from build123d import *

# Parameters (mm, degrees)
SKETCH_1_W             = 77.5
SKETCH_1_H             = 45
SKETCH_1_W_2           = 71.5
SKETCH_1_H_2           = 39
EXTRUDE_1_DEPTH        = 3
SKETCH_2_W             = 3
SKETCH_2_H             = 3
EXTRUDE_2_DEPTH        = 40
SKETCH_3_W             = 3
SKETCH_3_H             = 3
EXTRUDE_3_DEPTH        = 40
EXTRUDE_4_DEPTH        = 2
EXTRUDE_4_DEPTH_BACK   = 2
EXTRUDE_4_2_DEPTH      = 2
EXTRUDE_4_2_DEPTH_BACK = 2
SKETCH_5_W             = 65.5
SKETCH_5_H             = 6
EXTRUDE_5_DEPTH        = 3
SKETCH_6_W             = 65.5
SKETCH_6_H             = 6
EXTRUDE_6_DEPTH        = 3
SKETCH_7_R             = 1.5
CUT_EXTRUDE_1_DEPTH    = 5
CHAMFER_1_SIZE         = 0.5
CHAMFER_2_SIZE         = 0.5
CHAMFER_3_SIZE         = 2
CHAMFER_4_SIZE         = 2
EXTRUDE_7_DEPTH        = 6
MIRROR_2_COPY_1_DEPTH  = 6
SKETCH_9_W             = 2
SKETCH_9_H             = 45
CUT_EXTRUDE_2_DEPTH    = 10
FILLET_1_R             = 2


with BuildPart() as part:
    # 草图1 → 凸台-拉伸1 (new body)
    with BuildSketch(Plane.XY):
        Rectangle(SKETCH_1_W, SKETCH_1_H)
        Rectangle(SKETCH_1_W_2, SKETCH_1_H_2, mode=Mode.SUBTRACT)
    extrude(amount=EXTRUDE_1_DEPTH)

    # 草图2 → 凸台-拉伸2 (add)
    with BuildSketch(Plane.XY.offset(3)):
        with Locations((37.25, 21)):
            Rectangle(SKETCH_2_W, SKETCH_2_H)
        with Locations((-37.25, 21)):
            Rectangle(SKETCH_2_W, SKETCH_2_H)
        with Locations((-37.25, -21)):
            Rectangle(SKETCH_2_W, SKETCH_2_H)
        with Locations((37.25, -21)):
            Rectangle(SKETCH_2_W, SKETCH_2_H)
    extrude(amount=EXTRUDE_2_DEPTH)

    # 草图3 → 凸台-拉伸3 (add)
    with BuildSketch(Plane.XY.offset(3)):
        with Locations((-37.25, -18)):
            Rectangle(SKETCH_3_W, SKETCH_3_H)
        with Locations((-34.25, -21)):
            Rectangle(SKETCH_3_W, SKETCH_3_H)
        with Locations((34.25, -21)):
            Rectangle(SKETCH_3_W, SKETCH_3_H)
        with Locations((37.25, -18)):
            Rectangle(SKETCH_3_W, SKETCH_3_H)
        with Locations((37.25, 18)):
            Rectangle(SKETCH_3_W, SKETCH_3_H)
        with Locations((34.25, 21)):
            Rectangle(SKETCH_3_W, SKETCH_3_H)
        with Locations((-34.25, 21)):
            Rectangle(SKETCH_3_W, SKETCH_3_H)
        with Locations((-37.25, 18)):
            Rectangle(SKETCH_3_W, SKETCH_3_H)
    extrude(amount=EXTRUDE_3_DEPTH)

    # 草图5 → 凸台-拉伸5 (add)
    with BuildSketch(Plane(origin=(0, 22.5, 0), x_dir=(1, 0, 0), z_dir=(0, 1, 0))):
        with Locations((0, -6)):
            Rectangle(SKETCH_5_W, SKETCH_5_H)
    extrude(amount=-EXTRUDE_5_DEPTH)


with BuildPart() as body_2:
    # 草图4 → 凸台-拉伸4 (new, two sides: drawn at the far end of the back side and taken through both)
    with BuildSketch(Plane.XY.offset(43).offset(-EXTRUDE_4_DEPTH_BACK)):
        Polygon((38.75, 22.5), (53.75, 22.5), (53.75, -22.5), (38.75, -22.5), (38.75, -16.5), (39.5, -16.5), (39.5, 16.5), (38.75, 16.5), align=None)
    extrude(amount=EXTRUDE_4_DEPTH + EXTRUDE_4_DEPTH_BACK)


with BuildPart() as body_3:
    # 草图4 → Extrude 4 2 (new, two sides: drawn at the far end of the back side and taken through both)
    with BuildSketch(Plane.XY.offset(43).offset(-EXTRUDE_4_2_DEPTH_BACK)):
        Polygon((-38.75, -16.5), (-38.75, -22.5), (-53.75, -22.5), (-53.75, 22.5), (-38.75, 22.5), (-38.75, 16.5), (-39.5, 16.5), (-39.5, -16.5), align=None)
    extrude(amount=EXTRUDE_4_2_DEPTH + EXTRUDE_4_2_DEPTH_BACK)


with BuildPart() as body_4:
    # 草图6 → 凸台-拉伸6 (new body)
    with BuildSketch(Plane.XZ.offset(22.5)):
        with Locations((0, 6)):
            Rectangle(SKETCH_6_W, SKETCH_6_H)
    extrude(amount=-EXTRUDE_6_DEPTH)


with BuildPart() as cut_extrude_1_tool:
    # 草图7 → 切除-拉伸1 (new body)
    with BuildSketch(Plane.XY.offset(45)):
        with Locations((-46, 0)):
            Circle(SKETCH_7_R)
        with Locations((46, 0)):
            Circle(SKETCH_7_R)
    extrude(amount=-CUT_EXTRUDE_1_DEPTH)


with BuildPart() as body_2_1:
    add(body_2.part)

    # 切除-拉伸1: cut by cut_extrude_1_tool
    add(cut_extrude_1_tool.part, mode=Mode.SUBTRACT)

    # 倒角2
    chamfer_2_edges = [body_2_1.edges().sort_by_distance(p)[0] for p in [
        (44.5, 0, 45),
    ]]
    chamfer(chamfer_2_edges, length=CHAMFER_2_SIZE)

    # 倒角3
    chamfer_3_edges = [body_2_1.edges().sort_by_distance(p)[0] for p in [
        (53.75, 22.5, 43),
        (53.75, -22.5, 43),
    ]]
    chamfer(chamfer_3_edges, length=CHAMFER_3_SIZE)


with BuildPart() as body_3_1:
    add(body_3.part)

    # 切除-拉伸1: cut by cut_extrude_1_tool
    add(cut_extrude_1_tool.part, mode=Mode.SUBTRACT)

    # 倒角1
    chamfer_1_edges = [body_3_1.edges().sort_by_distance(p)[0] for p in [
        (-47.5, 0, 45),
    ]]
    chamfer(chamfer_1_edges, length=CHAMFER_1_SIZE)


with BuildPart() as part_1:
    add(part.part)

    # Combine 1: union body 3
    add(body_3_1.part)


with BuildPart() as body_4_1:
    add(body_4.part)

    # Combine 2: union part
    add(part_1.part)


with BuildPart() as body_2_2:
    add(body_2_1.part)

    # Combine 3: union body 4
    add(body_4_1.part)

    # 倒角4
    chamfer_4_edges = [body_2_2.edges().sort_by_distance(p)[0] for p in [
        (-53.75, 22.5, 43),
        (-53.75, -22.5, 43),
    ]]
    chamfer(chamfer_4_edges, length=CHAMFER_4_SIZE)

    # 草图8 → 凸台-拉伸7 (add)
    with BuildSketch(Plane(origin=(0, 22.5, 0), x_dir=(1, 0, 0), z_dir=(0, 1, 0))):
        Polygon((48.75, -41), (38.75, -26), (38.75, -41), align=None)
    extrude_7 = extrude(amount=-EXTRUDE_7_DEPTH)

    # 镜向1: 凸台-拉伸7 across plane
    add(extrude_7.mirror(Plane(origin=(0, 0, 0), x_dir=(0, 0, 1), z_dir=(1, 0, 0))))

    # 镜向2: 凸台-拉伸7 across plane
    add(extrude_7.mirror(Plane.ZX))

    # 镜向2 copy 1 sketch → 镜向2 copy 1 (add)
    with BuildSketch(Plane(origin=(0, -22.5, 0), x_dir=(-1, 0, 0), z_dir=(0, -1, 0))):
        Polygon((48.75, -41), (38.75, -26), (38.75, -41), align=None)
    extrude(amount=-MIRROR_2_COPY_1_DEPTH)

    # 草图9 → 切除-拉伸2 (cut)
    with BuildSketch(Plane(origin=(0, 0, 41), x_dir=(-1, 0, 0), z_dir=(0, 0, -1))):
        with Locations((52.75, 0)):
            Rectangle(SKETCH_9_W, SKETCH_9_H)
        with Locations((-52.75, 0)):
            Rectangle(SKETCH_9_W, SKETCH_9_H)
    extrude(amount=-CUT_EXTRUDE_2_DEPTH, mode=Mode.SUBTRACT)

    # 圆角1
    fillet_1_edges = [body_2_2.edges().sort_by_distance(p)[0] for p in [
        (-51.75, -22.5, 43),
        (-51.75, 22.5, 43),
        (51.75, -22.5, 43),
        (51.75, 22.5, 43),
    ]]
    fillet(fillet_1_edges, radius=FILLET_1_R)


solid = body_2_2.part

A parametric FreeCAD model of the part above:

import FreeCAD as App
import Part
import Sketcher
from FreeCAD import Vector
Q = App.Units.Quantity


def edges_at(feature, points):
    """Names of the edges that pass closest to the given points."""
    edges = feature.Shape.Edges
    near = lambda p: min(range(len(edges)), key=lambda i: edges[i].distToShape(Part.Vertex(*p))[0])
    return sorted({f"Edge{near(p) + 1}" for p in points})


def add_polygon(sketch, points):
    """Adds a closed chain of lines whose ends are joined by coincident constraints."""
    first, n = sketch.GeometryCount, len(points)
    for a, b in zip(points, points[1:] + points[:1]):
        sketch.addGeometry(Part.LineSegment(App.Vector(*a, 0), App.Vector(*b, 0)), False)
    for i in range(n):
        sketch.addConstraint(Sketcher.Constraint("Coincident", first + i, 2, first + (i + 1) % n, 1))

doc = App.newDocument("Part")
body = doc.addObject("PartDesign::Body", "Body")

sketch1 = body.newObject("Sketcher::SketchObject", "Sketch")
sketch1.AttachmentSupport = (doc.getObject("XY_Plane"), [""])
sketch1.MapMode = "FlatFace"
add_polygon(sketch1, [(-38.75, 22.5), (-38.75, -22.5), (38.75, -22.5), (38.75, 22.5)])
add_polygon(sketch1, [(35.75, -19.5), (-35.75, -19.5), (-35.75, 19.5), (35.75, 19.5)])
sketch1.addConstraint([
    Sketcher.Constraint("Vertical", 0),
    Sketcher.Constraint("Horizontal", 1),
    Sketcher.Constraint("Vertical", 2),
    Sketcher.Constraint("Horizontal", 3),
    Sketcher.Constraint("Horizontal", 4),
    Sketcher.Constraint("Vertical", 5),
    Sketcher.Constraint("Horizontal", 6),
    Sketcher.Constraint("Vertical", 7),
    Sketcher.Constraint("Symmetric", 0, 2, 2, 2, -1, 1),
    Sketcher.Constraint("Symmetric", 4, 2, 6, 2, -1, 1),
    Sketcher.Constraint("DistanceY", 0, 2, 0, 1, Q("45 mm")),
    Sketcher.Constraint("DistanceY", 5, 1, 5, 2, Q("39 mm")),
    Sketcher.Constraint("DistanceX", 1, 1, 1, 2, Q("77.5 mm")),
    Sketcher.Constraint("DistanceX", 4, 2, 4, 1, Q("71.5 mm")),
])
pad1 = body.newObject("PartDesign::Pad", "Pad")
pad1.Profile = sketch1
pad1.Length = 3

sketch2 = body.newObject("Sketcher::SketchObject", "Sketch001")
sketch2.AttachmentSupport = (doc.getObject("XY_Plane"), [""])
sketch2.MapMode = "FlatFace"
sketch2.AttachmentOffset = App.Placement(Vector(0, 0, 3), App.Rotation())
add_polygon(sketch2, [(35.75, 22.5), (35.75, 19.5), (38.75, 19.5), (38.75, 22.5)])
add_polygon(sketch2, [(-38.75, 22.5), (-38.75, 19.5), (-35.75, 19.5), (-35.75, 22.5)])
add_polygon(sketch2, [(-38.75, -19.5), (-38.75, -22.5), (-35.75, -22.5), (-35.75, -19.5)])
add_polygon(sketch2, [(35.75, -19.5), (35.75, -22.5), (38.75, -22.5), (38.75, -19.5)])
sketch2.addConstraint([
    Sketcher.Constraint("Vertical", 0),
    Sketcher.Constraint("Horizontal", 1),
    Sketcher.Constraint("Vertical", 2),
    Sketcher.Constraint("Horizontal", 3),
    Sketcher.Constraint("Vertical", 4),
    Sketcher.Constraint("Horizontal", 5),
    Sketcher.Constraint("Vertical", 6),
    Sketcher.Constraint("Horizontal", 7),
    Sketcher.Constraint("Vertical", 8),
    Sketcher.Constraint("Horizontal", 9),
    Sketcher.Constraint("Vertical", 10),
    Sketcher.Constraint("Horizontal", 11),
    Sketcher.Constraint("Vertical", 12),
    Sketcher.Constraint("Horizontal", 13),
    Sketcher.Constraint("Vertical", 14),
    Sketcher.Constraint("Horizontal", 15),
    Sketcher.Constraint("Symmetric", 2, 2, 8, 2, -1, 1),
    Sketcher.Constraint("Symmetric", 0, 2, 10, 2, -1, 1),
    Sketcher.Constraint("Symmetric", 6, 2, 12, 2, -1, 1),
    Sketcher.Constraint("Symmetric", 4, 2, 14, 2, -1, 1),
    Sketcher.Constraint("Symmetric", 1, 2, 4, 2, -2),
    Sketcher.Constraint("Symmetric", 3, 2, 6, 2, -2),
    Sketcher.Constraint("Equal", 15, 0),
    Sketcher.Constraint("DistanceX", 1, 1, 1, 2, Q("3 mm")),
    Sketcher.Constraint("DistanceY", 8, 2, 4, 2, Q("42 mm")),
    Sketcher.Constraint("DistanceX", 4, 2, 0, 2, Q("74.5 mm")),
])
pad2 = body.newObject("PartDesign::Pad", "Pad001")
pad2.Profile = sketch2
pad2.Length = 40

sketch3 = body.newObject("Sketcher::SketchObject", "Sketch002")
sketch3.AttachmentSupport = (doc.getObject("XY_Plane"), [""])
sketch3.MapMode = "FlatFace"
sketch3.AttachmentOffset = App.Placement(Vector(0, 0, 3), App.Rotation())
add_polygon(sketch3, [(-38.75, -16.5), (-38.75, -19.5), (-35.75, -19.5), (-35.75, -16.5)])
add_polygon(sketch3, [(-35.75, -19.5), (-35.75, -22.5), (-32.75, -22.5), (-32.75, -19.5)])
add_polygon(sketch3, [(32.75, -19.5), (32.75, -22.5), (35.75, -22.5), (35.75, -19.5)])
add_polygon(sketch3, [(35.75, -16.5), (35.75, -19.5), (38.75, -19.5), (38.75, -16.5)])
add_polygon(sketch3, [(35.75, 19.5), (35.75, 16.5), (38.75, 16.5), (38.75, 19.5)])
add_polygon(sketch3, [(32.75, 22.5), (32.75, 19.5), (35.75, 19.5), (35.75, 22.5)])
add_polygon(sketch3, [(-35.75, 22.5), (-35.75, 19.5), (-32.75, 19.5), (-32.75, 22.5)])
add_polygon(sketch3, [(-38.75, 19.5), (-38.75, 16.5), (-35.75, 16.5), (-35.75, 19.5)])
sketch3.addConstraint([
    Sketcher.Constraint("Vertical", 0),
    Sketcher.Constraint("Horizontal", 1),
    Sketcher.Constraint("Vertical", 2),
    Sketcher.Constraint("Horizontal", 3),
    Sketcher.Constraint("Vertical", 4),
    Sketcher.Constraint("Horizontal", 5),
    Sketcher.Constraint("Vertical", 6),
    Sketcher.Constraint("Horizontal", 7),
    Sketcher.Constraint("Vertical", 8),
    Sketcher.Constraint("Horizontal", 9),
    Sketcher.Constraint("Vertical", 10),
    Sketcher.Constraint("Horizontal", 11),
    Sketcher.Constraint("Vertical", 12),
    Sketcher.Constraint("Horizontal", 13),
    Sketcher.Constraint("Vertical", 14),
    Sketcher.Constraint("Horizontal", 15),
    Sketcher.Constraint("Vertical", 16),
    Sketcher.Constraint("Horizontal", 17),
    Sketcher.Constraint("Vertical", 18),
    Sketcher.Constraint("Horizontal", 19),
    Sketcher.Constraint("Vertical", 20),
    Sketcher.Constraint("Horizontal", 21),
    Sketcher.Constraint("Vertical", 22),
    Sketcher.Constraint("Horizontal", 23),
    Sketcher.Constraint("Vertical", 24),
    Sketcher.Constraint("Horizontal", 25),
    Sketcher.Constraint("Vertical", 26),
    Sketcher.Constraint("Horizontal", 27),
    Sketcher.Constraint("Vertical", 28),
    Sketcher.Constraint("Horizontal", 29),
    Sketcher.Constraint("Vertical", 30),
    Sketcher.Constraint("Horizontal", 31),
    Sketcher.Constraint("Coincident", 7, 2, 1, 2),
    Sketcher.Constraint("Coincident", 12, 2, 10, 2),
    Sketcher.Constraint("Coincident", 21, 2, 19, 2),
    Sketcher.Constraint("Coincident", 30, 2, 24, 2),
    Sketcher.Constraint("Symmetric", 2, 2, 16, 2, -1, 1),
    Sketcher.Constraint("Symmetric", 0, 2, 18, 2, -1, 1),
    Sketcher.Constraint("Symmetric", 5, 2, 23, 2, -1, 1),
    Sketcher.Constraint("Symmetric", 10, 2, 24, 2, -1, 1),
    Sketcher.Constraint("Symmetric", 8, 2, 26, 2, -1, 1),
    Sketcher.Constraint("Symmetric", 14, 2, 28, 2, -1, 1),
    Sketcher.Constraint("Symmetric", 5, 2, 8, 2, -2),
    Sketcher.Constraint("Symmetric", 1, 2, 10, 2, -2),
    Sketcher.Constraint("Symmetric", 3, 2, 14, 2, -2),
    Sketcher.Constraint("Equal", 3, 5),
    Sketcher.Constraint("Equal", 31, 0),
    Sketcher.Constraint("Equal", 2, 4),
    Sketcher.Constraint("DistanceX", 1, 1, 1, 2, Q("3 mm")),
    Sketcher.Constraint("DistanceY", 15, 2, 16, 2, Q("33 mm")),
    Sketcher.Constraint("DistanceX", 5, 2, 8, 2, Q("65.5 mm")),
])
pad3 = body.newObject("PartDesign::Pad", "Pad002")
pad3.Profile = sketch3
pad3.Length = 40

sketch4 = body.newObject("Sketcher::SketchObject", "Sketch003")
sketch4.AttachmentSupport = (doc.getObject("XZ_Plane"), [""])
sketch4.MapMode = "FlatFace"
sketch4.AttachmentOffset = App.Placement(Vector(0, 0, -22.5), App.Rotation())
add_polygon(sketch4, [(-32.75, 3), (-32.75, 9), (32.75, 9), (32.75, 3)])
sketch4.addConstraint([
    Sketcher.Constraint("Vertical", 0),
    Sketcher.Constraint("Horizontal", 1),
    Sketcher.Constraint("Vertical", 2),
    Sketcher.Constraint("Horizontal", 3),
    Sketcher.Constraint("DistanceY", 0, 1, 0, 2, Q("6 mm")),
    Sketcher.Constraint("DistanceX", 1, 1, 1, 2, Q("65.5 mm")),
    Sketcher.Constraint("DistanceY", -1, 1, 0, 2, Q("9 mm")),
    Sketcher.Constraint("DistanceX", 0, 2, -1, 1, Q("32.75 mm")),
])
pad4 = body.newObject("PartDesign::Pad", "Pad003")
pad4.Profile = sketch4
pad4.Length = 3
body2 = doc.addObject("PartDesign::Body", "Body001")

sketch5 = body2.newObject("Sketcher::SketchObject", "Sketch004")
sketch5.AttachmentSupport = (doc.getObject("XY_Plane001"), [""])
sketch5.MapMode = "FlatFace"
sketch5.AttachmentOffset = App.Placement(Vector(0, 0, 43), App.Rotation())
add_polygon(sketch5, [(53.75, 22.5), (38.75, 22.5), (38.75, 16.5), (39.5, 16.5), (39.5, -16.5), (38.75, -16.5), (38.75, -22.5), (53.75, -22.5)])
sketch5.addConstraint([
    Sketcher.Constraint("Horizontal", 0),
    Sketcher.Constraint("Vertical", 1),
    Sketcher.Constraint("Horizontal", 2),
    Sketcher.Constraint("Vertical", 3),
    Sketcher.Constraint("Horizontal", 4),
    Sketcher.Constraint("Vertical", 5),
    Sketcher.Constraint("Horizontal", 6),
    Sketcher.Constraint("Vertical", 7),
    Sketcher.Constraint("Symmetric", 1, 2, 4, 2, -1),
    Sketcher.Constraint("Equal", 1, 5),
    Sketcher.Constraint("DistanceX", 0, 2, 0, 1, Q("15 mm")),
    Sketcher.Constraint("DistanceY", 1, 2, 1, 1, Q("6 mm")),
    Sketcher.Constraint("DistanceY", 3, 2, 3, 1, Q("33 mm")),
    Sketcher.Constraint("DistanceX", 2, 1, 2, 2, Q("0.75 mm")),
    Sketcher.Constraint("DistanceX", -1, 1, 2, 2, Q("39.5 mm")),
])
pad5 = body2.newObject("PartDesign::Pad", "Pad004")
pad5.Profile = sketch5
pad5.Type = "TwoLengths"
pad5.Length = 2
pad5.Length2 = 2
body3 = doc.addObject("PartDesign::Body", "Body002")

sketch6 = body3.newObject("Sketcher::SketchObject", "Sketch005")
sketch6.AttachmentSupport = (doc.getObject("XY_Plane002"), [""])
sketch6.MapMode = "FlatFace"
sketch6.AttachmentOffset = App.Placement(Vector(0, 0, 43), App.Rotation())
add_polygon(sketch6, [(-38.75, -22.5), (-38.75, -16.5), (-39.5, -16.5), (-39.5, 16.5), (-38.75, 16.5), (-38.75, 22.5), (-53.75, 22.5), (-53.75, -22.5)])
sketch6.addConstraint([
    Sketcher.Constraint("Vertical", 0),
    Sketcher.Constraint("Horizontal", 1),
    Sketcher.Constraint("Vertical", 2),
    Sketcher.Constraint("Horizontal", 3),
    Sketcher.Constraint("Vertical", 4),
    Sketcher.Constraint("Horizontal", 5),
    Sketcher.Constraint("Vertical", 6),
    Sketcher.Constraint("Horizontal", 7),
    Sketcher.Constraint("Symmetric", 0, 2, 3, 2, -1),
    Sketcher.Constraint("Equal", 0, 4),
    Sketcher.Constraint("DistanceX", 5, 2, 5, 1, Q("15 mm")),
    Sketcher.Constraint("DistanceY", 0, 1, 0, 2, Q("6 mm")),
    Sketcher.Constraint("DistanceY", 2, 1, 2, 2, Q("33 mm")),
    Sketcher.Constraint("DistanceX", 1, 2, 1, 1, Q("0.75 mm")),
    Sketcher.Constraint("DistanceX", 1, 2, -1, 1, Q("39.5 mm")),
])
pad6 = body3.newObject("PartDesign::Pad", "Pad005")
pad6.Profile = sketch6
pad6.Type = "TwoLengths"
pad6.Length = 2
pad6.Length2 = 2
body4 = doc.addObject("PartDesign::Body", "Body003")

sketch7 = body4.newObject("Sketcher::SketchObject", "Sketch006")
sketch7.AttachmentSupport = (doc.getObject("XZ_Plane003"), [""])
sketch7.MapMode = "FlatFace"
sketch7.AttachmentOffset = App.Placement(Vector(0, 0, 22.5), App.Rotation())
add_polygon(sketch7, [(-32.75, 9), (-32.75, 3), (32.75, 3), (32.75, 9)])
sketch7.addConstraint([
    Sketcher.Constraint("Vertical", 0),
    Sketcher.Constraint("Horizontal", 1),
    Sketcher.Constraint("Vertical", 2),
    Sketcher.Constraint("Horizontal", 3),
    Sketcher.Constraint("DistanceY", 0, 2, 0, 1, Q("6 mm")),
    Sketcher.Constraint("DistanceX", 1, 1, 1, 2, Q("65.5 mm")),
    Sketcher.Constraint("DistanceY", -1, 1, 0, 2, Q("3 mm")),
    Sketcher.Constraint("DistanceX", 0, 2, -1, 1, Q("32.75 mm")),
])
pad7 = body4.newObject("PartDesign::Pad", "Pad006")
pad7.Profile = sketch7
pad7.Length = 3
pad7.Reversed = True
body5 = doc.addObject("PartDesign::Body", "Body004")
body5.AllowCompound = True

sketch8 = body5.newObject("Sketcher::SketchObject", "Sketch007")
sketch8.AttachmentSupport = (doc.getObject("XY_Plane004"), [""])
sketch8.MapMode = "FlatFace"
sketch8.AttachmentOffset = App.Placement(Vector(0, 0, 45), App.Rotation())
sketch8.addGeometry([
    Part.Circle(Vector(-46, 0, 0), Vector(0, 0, 1), 1.5),
    Part.Circle(Vector(46, 0, 0), Vector(0, 0, 1), 1.5),
], False)
sketch8.addConstraint([
    Sketcher.Constraint("Equal", 0, 1),
    Sketcher.Constraint("Symmetric", 0, 3, 1, 3, -1, 1),
    Sketcher.Constraint("PointOnObject", 0, 3, -1),
    Sketcher.Constraint("Diameter", 0, Q("3 mm")),
    Sketcher.Constraint("DistanceX", 0, 3, -1, 1, Q("46 mm")),
])
pad8 = body5.newObject("PartDesign::Pad", "Pad007")
pad8.Profile = sketch8
pad8.Length = 5
pad8.Reversed = True
doc.recompute()

body6 = doc.addObject("PartDesign::Body", "Body005")
body6.BaseFeature = body5
boolean = body2.newObject("PartDesign::Boolean", "Boolean")
boolean.Type = "Cut"
boolean.addObjects([body6])
doc.recompute()

chamfer = body2.newObject("PartDesign::Chamfer", "Chamfer")
chamfer.Base = (boolean, edges_at(boolean, [(44.5, 0, 45)]))
chamfer.Size = 0.5
doc.recompute()

chamfer2 = body2.newObject("PartDesign::Chamfer", "Chamfer001")
chamfer2.Base = (chamfer, edges_at(chamfer, [(53.75, 22.5, 43), (53.75, -22.5, 43)]))
chamfer2.Size = 2
doc.recompute()

boolean2 = body3.newObject("PartDesign::Boolean", "Boolean001")
boolean2.Type = "Cut"
boolean2.addObjects([body5])
doc.recompute()

chamfer3 = body3.newObject("PartDesign::Chamfer", "Chamfer002")
chamfer3.Base = (boolean2, edges_at(boolean2, [(-47.5, 0, 45)]))
chamfer3.Size = 0.5
doc.recompute()

boolean3 = body.newObject("PartDesign::Boolean", "Boolean002")
boolean3.Type = "Fuse"
boolean3.addObjects([body3])
doc.recompute()

boolean4 = body4.newObject("PartDesign::Boolean", "Boolean003")
boolean4.Type = "Fuse"
boolean4.addObjects([body])
doc.recompute()

boolean5 = body2.newObject("PartDesign::Boolean", "Boolean004")
boolean5.Type = "Fuse"
boolean5.addObjects([body4])
doc.recompute()

chamfer4 = body2.newObject("PartDesign::Chamfer", "Chamfer003")
chamfer4.Base = (boolean5, edges_at(boolean5, [(-53.75, 22.5, 43), (-53.75, -22.5, 43)]))
chamfer4.Size = 2

sketch9 = body2.newObject("Sketcher::SketchObject", "Sketch008")
sketch9.AttachmentSupport = (doc.getObject("XZ_Plane001"), [""])
sketch9.MapMode = "FlatFace"
sketch9.AttachmentOffset = App.Placement(Vector(0, 0, -22.5), App.Rotation())
add_polygon(sketch9, [(48.75, 41), (38.75, 26), (38.75, 41)])
sketch9.addConstraint([
    Sketcher.Constraint("Vertical", 1),
    Sketcher.Constraint("Horizontal", 2),
    Sketcher.Constraint("DistanceX", 2, 1, 2, 2, Q("10 mm")),
    Sketcher.Constraint("DistanceY", 1, 1, 1, 2, Q("15 mm")),
    Sketcher.Constraint("DistanceY", -1, 1, 0, 2, Q("26 mm")),
    Sketcher.Constraint("DistanceX", -1, 1, 0, 2, Q("38.75 mm")),
])
pad9 = body2.newObject("PartDesign::Pad", "Pad008")
pad9.Profile = sketch9
pad9.Length = 6
doc.recompute()

mirrored = body2.newObject("PartDesign::Mirrored", "Mirrored")
mirrored.Originals = [pad9]
mirrored.MirrorPlane = (doc.getObject("YZ_Plane001"), [""])
body2.Tip = mirrored
doc.recompute()

mirrored2 = body2.newObject("PartDesign::Mirrored", "Mirrored001")
mirrored2.Originals = [pad9]
mirrored2.MirrorPlane = (doc.getObject("XZ_Plane001"), [""])
body2.Tip = mirrored2

sketch10 = body2.newObject("Sketcher::SketchObject", "Sketch009")
sketch10.AttachmentSupport = (doc.getObject("XZ_Plane001"), [""])
sketch10.MapMode = "FlatFace"
sketch10.AttachmentOffset = App.Placement(Vector(0, 0, 22.5), App.Rotation())
add_polygon(sketch10, [(-48.75, 41), (-38.75, 26), (-38.75, 41)])
sketch10.addConstraint([
    Sketcher.Constraint("Vertical", 1),
    Sketcher.Constraint("Horizontal", 2),
    Sketcher.Constraint("DistanceX", 2, 2, 2, 1, Q("10 mm")),
    Sketcher.Constraint("DistanceY", 1, 1, 1, 2, Q("15 mm")),
    Sketcher.Constraint("DistanceY", -1, 1, 0, 2, Q("26 mm")),
    Sketcher.Constraint("DistanceX", 0, 2, -1, 1, Q("38.75 mm")),
])
pad10 = body2.newObject("PartDesign::Pad", "Pad009")
pad10.Profile = sketch10
pad10.Length = 6
pad10.Reversed = True

sketch11 = body2.newObject("Sketcher::SketchObject", "Sketch010")
sketch11.AttachmentSupport = (doc.getObject("XY_Plane001"), [""])
sketch11.MapMode = "FlatFace"
sketch11.AttachmentOffset = App.Placement(Vector(0, 0, 41), App.Rotation())
add_polygon(sketch11, [(-51.75, 22.5), (-51.75, -22.5), (-53.75, -22.5), (-53.75, 22.5)])
add_polygon(sketch11, [(53.75, 22.5), (53.75, -22.5), (51.75, -22.5), (51.75, 22.5)])
sketch11.addConstraint([
    Sketcher.Constraint("Vertical", 0),
    Sketcher.Constraint("Horizontal", 1),
    Sketcher.Constraint("Vertical", 2),
    Sketcher.Constraint("Horizontal", 3),
    Sketcher.Constraint("Vertical", 4),
    Sketcher.Constraint("Horizontal", 5),
    Sketcher.Constraint("Vertical", 6),
    Sketcher.Constraint("Horizontal", 7),
    Sketcher.Constraint("Symmetric", 2, 2, 4, 2, -1, 1),
    Sketcher.Constraint("Symmetric", 0, 2, 6, 2, -1, 1),
    Sketcher.Constraint("Horizontal", 1, 2, 4, 2),
    Sketcher.Constraint("DistanceX", 1, 2, 1, 1, Q("2 mm")),
    Sketcher.Constraint("DistanceY", 0, 2, 0, 1, Q("45 mm")),
    Sketcher.Constraint("DistanceX", 0, 2, 4, 2, Q("105.5 mm")),
])
pocket1 = body2.newObject("PartDesign::Pocket", "Pocket")
pocket1.Profile = sketch11
pocket1.Length = 10
pocket1.Reversed = True
doc.recompute()

fillet = body2.newObject("PartDesign::Fillet", "Fillet")
fillet.Base = (pocket1, edges_at(pocket1, [
    (-51.75, -22.5, 43),
    (-51.75, 22.5, 43),
    (51.75, -22.5, 43),
    (51.75, 22.5, 43),
]))
fillet.Radius = 2

doc.recompute()
